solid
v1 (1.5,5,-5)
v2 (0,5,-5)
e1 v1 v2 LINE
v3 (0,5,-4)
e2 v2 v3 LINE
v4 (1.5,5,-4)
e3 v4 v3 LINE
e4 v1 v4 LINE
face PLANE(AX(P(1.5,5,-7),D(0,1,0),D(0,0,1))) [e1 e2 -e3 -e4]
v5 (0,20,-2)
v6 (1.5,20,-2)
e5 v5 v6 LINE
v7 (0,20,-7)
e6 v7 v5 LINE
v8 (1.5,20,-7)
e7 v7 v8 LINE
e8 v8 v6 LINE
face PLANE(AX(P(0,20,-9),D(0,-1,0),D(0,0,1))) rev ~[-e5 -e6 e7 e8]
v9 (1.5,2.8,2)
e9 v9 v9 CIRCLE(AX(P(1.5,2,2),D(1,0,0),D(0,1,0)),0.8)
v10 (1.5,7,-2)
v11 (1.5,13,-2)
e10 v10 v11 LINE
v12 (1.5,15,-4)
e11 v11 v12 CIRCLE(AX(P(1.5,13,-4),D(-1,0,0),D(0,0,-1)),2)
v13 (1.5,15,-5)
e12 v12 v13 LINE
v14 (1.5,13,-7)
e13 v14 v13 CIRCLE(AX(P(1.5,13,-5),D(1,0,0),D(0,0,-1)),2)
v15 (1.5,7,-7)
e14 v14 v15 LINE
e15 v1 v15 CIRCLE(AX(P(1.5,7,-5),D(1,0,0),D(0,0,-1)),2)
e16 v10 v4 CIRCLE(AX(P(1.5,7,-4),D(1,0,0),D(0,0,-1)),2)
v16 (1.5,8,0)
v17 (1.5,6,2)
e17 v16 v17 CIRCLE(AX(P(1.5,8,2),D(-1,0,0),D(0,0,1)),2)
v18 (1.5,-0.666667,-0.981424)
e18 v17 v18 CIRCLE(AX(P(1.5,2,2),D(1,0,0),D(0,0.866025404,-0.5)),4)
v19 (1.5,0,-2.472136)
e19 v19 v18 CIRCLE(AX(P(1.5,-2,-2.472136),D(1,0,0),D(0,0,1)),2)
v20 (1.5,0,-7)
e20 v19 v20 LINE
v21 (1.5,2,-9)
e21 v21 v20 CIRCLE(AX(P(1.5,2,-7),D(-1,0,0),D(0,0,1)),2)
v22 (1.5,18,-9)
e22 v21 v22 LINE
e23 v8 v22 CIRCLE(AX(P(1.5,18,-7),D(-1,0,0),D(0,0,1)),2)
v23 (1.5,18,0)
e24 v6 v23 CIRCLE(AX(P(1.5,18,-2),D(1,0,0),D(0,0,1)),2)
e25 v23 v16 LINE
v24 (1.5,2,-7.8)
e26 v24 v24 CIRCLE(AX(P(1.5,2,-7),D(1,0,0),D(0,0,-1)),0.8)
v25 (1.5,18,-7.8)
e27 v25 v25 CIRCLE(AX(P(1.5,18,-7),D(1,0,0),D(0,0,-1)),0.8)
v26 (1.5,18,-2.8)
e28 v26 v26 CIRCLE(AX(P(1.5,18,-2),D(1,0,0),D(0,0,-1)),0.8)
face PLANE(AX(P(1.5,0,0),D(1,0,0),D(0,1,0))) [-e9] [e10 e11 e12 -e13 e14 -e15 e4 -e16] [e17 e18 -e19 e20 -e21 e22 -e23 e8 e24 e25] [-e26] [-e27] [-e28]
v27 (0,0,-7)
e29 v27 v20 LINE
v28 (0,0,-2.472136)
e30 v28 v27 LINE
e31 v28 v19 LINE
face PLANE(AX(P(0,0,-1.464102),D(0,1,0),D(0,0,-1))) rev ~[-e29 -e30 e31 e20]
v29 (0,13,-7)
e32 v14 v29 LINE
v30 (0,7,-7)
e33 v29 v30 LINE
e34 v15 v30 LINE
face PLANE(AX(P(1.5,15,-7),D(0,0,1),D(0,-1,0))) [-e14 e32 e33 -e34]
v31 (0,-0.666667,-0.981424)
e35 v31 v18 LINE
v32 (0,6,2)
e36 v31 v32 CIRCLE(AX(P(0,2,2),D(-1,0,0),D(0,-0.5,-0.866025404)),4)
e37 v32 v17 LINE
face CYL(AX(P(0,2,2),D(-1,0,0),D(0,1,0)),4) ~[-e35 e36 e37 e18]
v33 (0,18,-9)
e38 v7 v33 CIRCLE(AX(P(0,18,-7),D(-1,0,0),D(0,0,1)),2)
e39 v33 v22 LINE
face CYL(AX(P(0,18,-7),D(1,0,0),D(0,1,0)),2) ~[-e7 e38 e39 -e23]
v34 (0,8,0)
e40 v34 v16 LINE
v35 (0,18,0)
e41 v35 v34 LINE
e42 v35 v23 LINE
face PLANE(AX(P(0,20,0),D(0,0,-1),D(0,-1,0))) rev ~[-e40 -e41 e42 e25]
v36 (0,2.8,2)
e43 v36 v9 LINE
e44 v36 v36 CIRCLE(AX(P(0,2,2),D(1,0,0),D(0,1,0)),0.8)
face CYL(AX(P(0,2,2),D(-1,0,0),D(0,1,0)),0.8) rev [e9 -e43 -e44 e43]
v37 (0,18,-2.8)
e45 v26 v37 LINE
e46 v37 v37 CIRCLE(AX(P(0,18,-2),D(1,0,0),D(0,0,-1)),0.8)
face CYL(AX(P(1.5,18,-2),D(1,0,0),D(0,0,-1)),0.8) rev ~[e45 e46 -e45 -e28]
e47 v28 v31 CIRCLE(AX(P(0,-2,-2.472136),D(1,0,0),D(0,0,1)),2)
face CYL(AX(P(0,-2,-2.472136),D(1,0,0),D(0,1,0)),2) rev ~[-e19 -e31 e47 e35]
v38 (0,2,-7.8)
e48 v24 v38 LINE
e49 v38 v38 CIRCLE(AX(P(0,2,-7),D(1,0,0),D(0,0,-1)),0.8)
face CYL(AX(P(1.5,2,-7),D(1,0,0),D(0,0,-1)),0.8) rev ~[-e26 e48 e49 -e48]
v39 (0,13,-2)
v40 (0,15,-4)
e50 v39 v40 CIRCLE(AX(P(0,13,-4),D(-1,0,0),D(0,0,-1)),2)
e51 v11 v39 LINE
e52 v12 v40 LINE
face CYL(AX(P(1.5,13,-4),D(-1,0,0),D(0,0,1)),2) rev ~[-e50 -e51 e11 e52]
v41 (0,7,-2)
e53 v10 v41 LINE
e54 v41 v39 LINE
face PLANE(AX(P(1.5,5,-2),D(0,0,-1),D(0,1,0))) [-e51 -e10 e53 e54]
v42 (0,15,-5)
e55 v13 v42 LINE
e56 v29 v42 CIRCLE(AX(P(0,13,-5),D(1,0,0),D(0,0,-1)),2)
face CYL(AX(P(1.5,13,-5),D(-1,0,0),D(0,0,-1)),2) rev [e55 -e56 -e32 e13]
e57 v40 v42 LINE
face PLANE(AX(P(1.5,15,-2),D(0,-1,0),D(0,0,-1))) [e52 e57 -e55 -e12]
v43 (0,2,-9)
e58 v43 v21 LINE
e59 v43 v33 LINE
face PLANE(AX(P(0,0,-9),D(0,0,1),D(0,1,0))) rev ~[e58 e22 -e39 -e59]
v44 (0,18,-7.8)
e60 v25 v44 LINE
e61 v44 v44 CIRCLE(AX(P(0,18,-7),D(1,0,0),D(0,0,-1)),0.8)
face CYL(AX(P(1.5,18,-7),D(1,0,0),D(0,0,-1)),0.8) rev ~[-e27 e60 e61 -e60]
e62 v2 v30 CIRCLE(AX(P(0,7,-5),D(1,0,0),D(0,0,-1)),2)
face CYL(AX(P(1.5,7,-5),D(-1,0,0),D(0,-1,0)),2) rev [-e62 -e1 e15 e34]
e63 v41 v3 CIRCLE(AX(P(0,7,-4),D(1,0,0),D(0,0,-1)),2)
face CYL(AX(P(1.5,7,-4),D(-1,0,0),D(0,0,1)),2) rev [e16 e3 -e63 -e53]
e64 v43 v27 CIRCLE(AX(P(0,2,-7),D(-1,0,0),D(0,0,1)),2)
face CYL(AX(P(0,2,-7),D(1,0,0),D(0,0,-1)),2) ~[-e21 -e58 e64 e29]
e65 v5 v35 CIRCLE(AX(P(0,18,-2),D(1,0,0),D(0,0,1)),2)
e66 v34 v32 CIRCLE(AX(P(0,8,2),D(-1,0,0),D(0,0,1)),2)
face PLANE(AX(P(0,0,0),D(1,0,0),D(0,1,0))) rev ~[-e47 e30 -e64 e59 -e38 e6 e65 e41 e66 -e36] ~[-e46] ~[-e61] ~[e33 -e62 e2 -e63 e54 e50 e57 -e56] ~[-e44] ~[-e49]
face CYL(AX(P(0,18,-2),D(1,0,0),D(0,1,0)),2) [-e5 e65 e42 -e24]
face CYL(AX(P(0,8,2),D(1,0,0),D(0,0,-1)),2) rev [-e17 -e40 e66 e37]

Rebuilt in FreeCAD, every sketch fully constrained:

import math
import FreeCAD as App
import Part
import Sketcher
from FreeCAD import Vector
Q = App.Units.Quantity


def edges_at(feature, points):
    """Names of the edges that pass closest to the given points."""
    edges = feature.Shape.Edges
    near = lambda p: min(range(len(edges)), key=lambda i: edges[i].distToShape(Part.Vertex(*p))[0])
    return sorted({f"Edge{near(p) + 1}" for p in points})

doc = App.newDocument("Part")
body = doc.addObject("PartDesign::Body", "Body")

# Sketch on YZ plane
sketch1 = body.newObject("Sketcher::SketchObject", "Sketch")
sketch1.AttachmentSupport = (doc.getObject("YZ_Plane"), [""])
sketch1.MapMode = "FlatFace"
sketch1.addGeometry([
    Part.LineSegment(Vector(20, -9, 0), Vector(20, 0, 0)),  # 0
    Part.LineSegment(Vector(20, 0, 0), Vector(5.5, 0, 0)),  # 1
    Part.ArcOfCircle(Part.Circle(Vector(2, 2, 0), Vector(0, 0, 1), 4), math.radians(-30), math.radians(240)),  # 2
    Part.LineSegment(Vector(0, -1.5, 0), Vector(0, -9, 0)),  # 3
    Part.LineSegment(Vector(0, -9, 0), Vector(20, -9, 0)),  # 4
    Part.Circle(Vector(2, 2, 0), Vector(0, 0, 1), 0.8),  # 5
], False)
sketch1.addConstraint([
    Sketcher.Constraint("Coincident", 0, 2, 1, 1),
    Sketcher.Constraint("Coincident", 1, 2, 2, 1),
    Sketcher.Constraint("Coincident", 2, 2, 3, 1),
    Sketcher.Constraint("Coincident", 3, 2, 4, 1),
    Sketcher.Constraint("Coincident", 4, 2, 0, 1),
    Sketcher.Constraint("Vertical", 0),
    Sketcher.Constraint("Horizontal", 1),
    Sketcher.Constraint("Vertical", 3),
    Sketcher.Constraint("Horizontal", 4),
    Sketcher.Constraint("Coincident", 5, 3, 2, 3),
    Sketcher.Constraint("PointOnObject", 0, 2, -1),
    Sketcher.Constraint("PointOnObject", 2, 2, -2),
    Sketcher.Constraint("Radius", 2, Q("4 mm")),
    Sketcher.Constraint("Diameter", 5, Q("1.6 mm")),
    Sketcher.Constraint("DistanceX", 4, 1, 4, 2, Q("20 mm")),
    Sketcher.Constraint("DistanceY", 0, 1, 0, 2, Q("9 mm")),
    Sketcher.Constraint("DistanceX", -1, 1, 2, 3, Q("2 mm")),
    Sketcher.Constraint("DistanceY", -1, 1, 2, 3, Q("2 mm")),
])
pad1 = body.newObject("PartDesign::Pad", "Pad")
pad1.Profile = sketch1
pad1.Length = 1.5
doc.recompute()

fillet = body.newObject("PartDesign::Fillet", "Fillet")
fillet.Base = (pad1, edges_at(pad1, [
    (0.75, 20, 0),
    (0.75, 20, -9),
    (0.75, 0, -9),
    (0.75, 0, -1.464),
    (0.75, 5.464, 0),
]))
fillet.Radius = 2

# Sketch on YZ plane
sketch2 = body.newObject("Sketcher::SketchObject", "Sketch001")
sketch2.AttachmentSupport = (doc.getObject("YZ_Plane"), [""])
sketch2.MapMode = "FlatFace"
sketch2.AttachmentOffset = App.Placement(Vector(0, 0, 1.5), App.Rotation())
sketch2.addGeometry([
    Part.Circle(Vector(18, -2, 0), Vector(0, 0, 1), 0.8),  # 0
    Part.Circle(Vector(18, -7, 0), Vector(0, 0, 1), 0.8),  # 1
    Part.Circle(Vector(2, -7, 0), Vector(0, 0, 1), 0.8),  # 2
    Part.LineSegment(Vector(15, -7, 0), Vector(15, -2, 0)),  # 3
    Part.LineSegment(Vector(15, -2, 0), Vector(5, -2, 0)),  # 4
    Part.LineSegment(Vector(5, -2, 0), Vector(5, -7, 0)),  # 5
    Part.LineSegment(Vector(5, -7, 0), Vector(15, -7, 0)),  # 6
], False)
sketch2.addConstraint([
    Sketcher.Constraint("Coincident", 3, 2, 4, 1),
    Sketcher.Constraint("Coincident", 4, 2, 5, 1),
    Sketcher.Constraint("Coincident", 5, 2, 6, 1),
    Sketcher.Constraint("Coincident", 6, 2, 3, 1),
    Sketcher.Constraint("Vertical", 3),
    Sketcher.Constraint("Horizontal", 4),
    Sketcher.Constraint("Vertical", 5),
    Sketcher.Constraint("Horizontal", 6),
    Sketcher.Constraint("Equal", 0, 1),
    Sketcher.Constraint("Equal", 1, 2),
    Sketcher.Constraint("Horizontal", 1, 3, 2, 3),
    Sketcher.Constraint("Horizontal", 0, 3, 3, 2),
    Sketcher.Constraint("Horizontal", 2, 3, 5, 2),
    Sketcher.Constraint("Vertical", 0, 3, 1, 3),
    Sketcher.Constraint("Diameter", 0, Q("1.6 mm")),
    Sketcher.Constraint("DistanceX", 3, 2, 0, 3, Q("3 mm")),
    Sketcher.Constraint("DistanceX", 2, 3, 4, 2, Q("3 mm")),
    Sketcher.Constraint("DistanceX", 4, 2, 4, 1, Q("10 mm")),
    Sketcher.Constraint("DistanceY", 3, 1, 3, 2, Q("5 mm")),
    Sketcher.Constraint("DistanceX", -1, 1, 0, 3, Q("18 mm")),
    Sketcher.Constraint("DistanceY", 0, 3, -1, 1, Q("2 mm")),
])
pocket1 = body.newObject("PartDesign::Pocket", "Pocket")
pocket1.Profile = sketch2
pocket1.Type = "ThroughAll"
doc.recompute()

fillet2 = body.newObject("PartDesign::Fillet", "Fillet001")
fillet2.Base = (pocket1, edges_at(pocket1, [
    (0.75, 15, -2),
    (0.75, 15, -7),
    (0.75, 5, -7),
    (0.75, 5, -2),
]))
fillet2.Radius = 2

doc.recompute()
